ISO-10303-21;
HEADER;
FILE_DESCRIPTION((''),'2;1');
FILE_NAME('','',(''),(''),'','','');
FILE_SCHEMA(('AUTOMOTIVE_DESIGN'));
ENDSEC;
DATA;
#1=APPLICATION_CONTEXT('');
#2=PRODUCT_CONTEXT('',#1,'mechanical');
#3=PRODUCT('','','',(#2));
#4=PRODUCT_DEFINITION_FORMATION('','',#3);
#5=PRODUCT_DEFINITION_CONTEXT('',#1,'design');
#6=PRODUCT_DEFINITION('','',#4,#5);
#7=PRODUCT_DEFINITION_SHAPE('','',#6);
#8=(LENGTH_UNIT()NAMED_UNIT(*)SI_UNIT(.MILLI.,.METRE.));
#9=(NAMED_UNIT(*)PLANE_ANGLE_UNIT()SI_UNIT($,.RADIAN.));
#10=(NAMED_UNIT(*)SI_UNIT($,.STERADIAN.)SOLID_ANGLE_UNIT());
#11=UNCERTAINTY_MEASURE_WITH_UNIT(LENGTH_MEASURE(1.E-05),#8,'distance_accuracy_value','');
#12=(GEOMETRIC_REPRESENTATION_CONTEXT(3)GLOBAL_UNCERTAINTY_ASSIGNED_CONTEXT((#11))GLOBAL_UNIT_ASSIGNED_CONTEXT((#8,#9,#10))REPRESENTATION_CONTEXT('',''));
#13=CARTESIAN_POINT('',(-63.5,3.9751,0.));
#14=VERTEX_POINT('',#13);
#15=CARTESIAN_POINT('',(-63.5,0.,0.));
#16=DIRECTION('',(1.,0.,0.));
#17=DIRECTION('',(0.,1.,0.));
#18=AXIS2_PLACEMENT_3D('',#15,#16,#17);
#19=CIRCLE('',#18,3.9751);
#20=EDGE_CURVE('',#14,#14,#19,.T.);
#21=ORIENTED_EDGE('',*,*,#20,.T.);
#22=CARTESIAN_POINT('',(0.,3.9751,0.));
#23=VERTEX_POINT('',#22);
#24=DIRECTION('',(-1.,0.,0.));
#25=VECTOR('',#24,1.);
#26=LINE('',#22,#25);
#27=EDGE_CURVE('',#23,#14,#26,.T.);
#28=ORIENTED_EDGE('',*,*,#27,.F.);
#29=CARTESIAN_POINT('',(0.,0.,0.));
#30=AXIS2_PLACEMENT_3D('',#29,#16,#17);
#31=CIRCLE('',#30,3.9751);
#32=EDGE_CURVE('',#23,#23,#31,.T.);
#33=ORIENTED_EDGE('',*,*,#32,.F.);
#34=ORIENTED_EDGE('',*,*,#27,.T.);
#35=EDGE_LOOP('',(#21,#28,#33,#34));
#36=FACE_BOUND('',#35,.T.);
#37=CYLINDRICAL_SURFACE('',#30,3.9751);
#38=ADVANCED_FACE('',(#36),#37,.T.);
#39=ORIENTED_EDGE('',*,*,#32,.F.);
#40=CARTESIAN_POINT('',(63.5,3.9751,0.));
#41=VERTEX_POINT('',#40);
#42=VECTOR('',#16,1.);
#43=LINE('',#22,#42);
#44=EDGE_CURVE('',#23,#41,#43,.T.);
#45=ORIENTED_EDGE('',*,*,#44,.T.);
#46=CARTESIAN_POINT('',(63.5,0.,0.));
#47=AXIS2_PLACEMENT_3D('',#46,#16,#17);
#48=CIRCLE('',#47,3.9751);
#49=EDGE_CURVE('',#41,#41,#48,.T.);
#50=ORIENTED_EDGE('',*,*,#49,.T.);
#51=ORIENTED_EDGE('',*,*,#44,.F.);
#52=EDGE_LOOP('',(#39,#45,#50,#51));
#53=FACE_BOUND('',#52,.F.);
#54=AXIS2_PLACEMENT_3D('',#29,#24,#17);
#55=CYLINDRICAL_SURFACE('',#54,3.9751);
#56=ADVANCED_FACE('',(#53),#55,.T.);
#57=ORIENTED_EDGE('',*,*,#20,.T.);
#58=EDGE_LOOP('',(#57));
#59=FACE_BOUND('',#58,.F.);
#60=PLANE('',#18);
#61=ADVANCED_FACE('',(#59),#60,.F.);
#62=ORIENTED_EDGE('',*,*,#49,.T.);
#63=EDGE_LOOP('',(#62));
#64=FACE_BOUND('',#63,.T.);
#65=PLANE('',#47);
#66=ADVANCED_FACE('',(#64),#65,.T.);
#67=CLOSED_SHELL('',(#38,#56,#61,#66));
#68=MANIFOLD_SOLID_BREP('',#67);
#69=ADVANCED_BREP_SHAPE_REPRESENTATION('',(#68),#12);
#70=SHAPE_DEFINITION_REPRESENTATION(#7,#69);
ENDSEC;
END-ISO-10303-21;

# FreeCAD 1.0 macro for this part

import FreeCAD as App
import Part
import Sketcher
from FreeCAD import Vector
Q = App.Units.Quantity

doc = App.newDocument("Part")
body = doc.addObject("PartDesign::Body", "Body")

sketch1 = doc.addObject("Sketcher::SketchObject", "Sketch")
body.addObject(sketch1)
sketch1.AttachmentSupport = (doc.YZ_Plane, [""])
sketch1.MapMode = "FlatFace"
sketch1.addGeometry(Part.Circle(Vector(0, 0, 0), Vector(0, 0, 1), 4), False)
sketch1.addConstraint(Sketcher.Constraint("Coincident", 0, 3, -1, 1))
sketch1.addConstraint(Sketcher.Constraint("Diameter", 0, Q("0.313 in")))
pad1 = doc.addObject("PartDesign::Pad", "Pad")
body.addObject(pad1)
pad1.Profile = sketch1
pad1.Length = Q("5 in")
pad1.Midplane = True

doc.recompute()
